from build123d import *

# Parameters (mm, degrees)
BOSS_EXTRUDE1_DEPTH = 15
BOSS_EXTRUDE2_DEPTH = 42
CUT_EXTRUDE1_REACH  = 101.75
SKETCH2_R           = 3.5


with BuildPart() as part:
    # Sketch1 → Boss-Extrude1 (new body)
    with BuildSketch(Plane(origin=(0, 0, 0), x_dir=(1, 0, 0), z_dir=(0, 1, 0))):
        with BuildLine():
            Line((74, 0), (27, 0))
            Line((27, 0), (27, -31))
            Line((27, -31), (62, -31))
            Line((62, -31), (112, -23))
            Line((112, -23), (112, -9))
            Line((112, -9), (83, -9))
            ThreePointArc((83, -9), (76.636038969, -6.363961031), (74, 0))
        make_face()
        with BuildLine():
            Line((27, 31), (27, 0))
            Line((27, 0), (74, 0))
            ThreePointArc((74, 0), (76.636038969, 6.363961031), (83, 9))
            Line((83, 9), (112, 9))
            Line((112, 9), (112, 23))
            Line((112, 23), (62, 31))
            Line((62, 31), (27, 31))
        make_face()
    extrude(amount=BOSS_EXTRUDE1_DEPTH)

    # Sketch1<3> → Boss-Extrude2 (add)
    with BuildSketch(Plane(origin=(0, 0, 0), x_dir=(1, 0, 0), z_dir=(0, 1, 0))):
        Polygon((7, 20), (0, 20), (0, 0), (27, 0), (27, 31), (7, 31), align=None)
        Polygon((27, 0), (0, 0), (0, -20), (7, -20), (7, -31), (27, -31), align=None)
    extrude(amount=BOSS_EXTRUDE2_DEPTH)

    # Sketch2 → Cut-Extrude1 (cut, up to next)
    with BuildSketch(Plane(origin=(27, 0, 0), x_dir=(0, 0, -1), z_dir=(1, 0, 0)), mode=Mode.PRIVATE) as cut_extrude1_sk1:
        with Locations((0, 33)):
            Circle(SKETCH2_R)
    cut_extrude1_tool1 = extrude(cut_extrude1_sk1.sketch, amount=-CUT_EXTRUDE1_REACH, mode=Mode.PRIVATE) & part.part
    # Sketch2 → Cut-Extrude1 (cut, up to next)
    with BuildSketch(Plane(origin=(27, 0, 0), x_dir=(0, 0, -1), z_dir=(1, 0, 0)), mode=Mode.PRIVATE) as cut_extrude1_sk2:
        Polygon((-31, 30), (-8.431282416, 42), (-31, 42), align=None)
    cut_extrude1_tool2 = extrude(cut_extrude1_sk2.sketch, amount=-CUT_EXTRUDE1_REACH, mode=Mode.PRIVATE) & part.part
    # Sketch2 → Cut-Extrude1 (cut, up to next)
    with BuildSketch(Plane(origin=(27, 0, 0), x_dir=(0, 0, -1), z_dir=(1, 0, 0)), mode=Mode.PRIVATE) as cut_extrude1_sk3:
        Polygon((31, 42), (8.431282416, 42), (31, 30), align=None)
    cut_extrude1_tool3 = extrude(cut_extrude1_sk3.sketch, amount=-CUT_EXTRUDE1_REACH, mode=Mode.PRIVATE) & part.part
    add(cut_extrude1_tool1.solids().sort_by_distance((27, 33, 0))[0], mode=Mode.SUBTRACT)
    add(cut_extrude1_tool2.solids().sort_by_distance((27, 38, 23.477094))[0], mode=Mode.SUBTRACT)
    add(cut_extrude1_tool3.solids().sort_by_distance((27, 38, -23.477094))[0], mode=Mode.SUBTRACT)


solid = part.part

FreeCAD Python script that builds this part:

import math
import FreeCAD as App
import Part
import Sketcher
from FreeCAD import Vector
Q = App.Units.Quantity


def add_polygon(sketch, points):
    """Adds a closed chain of lines whose ends are joined by coincident constraints."""
    first, n = sketch.GeometryCount, len(points)
    for a, b in zip(points, points[1:] + points[:1]):
        sketch.addGeometry(Part.LineSegment(App.Vector(*a, 0), App.Vector(*b, 0)), False)
    for i in range(n):
        sketch.addConstraint(Sketcher.Constraint("Coincident", first + i, 2, first + (i + 1) % n, 1))

doc = App.newDocument("Part")
body = doc.addObject("PartDesign::Body", "Body")

# Sketch on XZ plane
sketch1 = body.newObject("Sketcher::SketchObject", "Sketch")
sketch1.AttachmentSupport = (doc.getObject("XZ_Plane"), [""])
sketch1.MapMode = "FlatFace"
sketch1.addGeometry(Part.LineSegment(Vector(27, 31, 0), Vector(62, 31, 0)), False)
sketch1.addGeometry(Part.LineSegment(Vector(62, 31, 0), Vector(112, 23, 0)), False)
sketch1.addGeometry(Part.LineSegment(Vector(112, 23, 0), Vector(112, 9, 0)), False)
sketch1.addGeometry(Part.LineSegment(Vector(112, 9, 0), Vector(83, 9, 0)), False)
sketch1.addGeometry(Part.ArcOfCircle(Part.Circle(Vector(83, 0, 0), Vector(0, 0, 1), 9), math.radians(90), math.radians(180)), False)
sketch1.addGeometry(Part.ArcOfCircle(Part.Circle(Vector(83, 0, 0), Vector(0, 0, 1), 9), math.radians(180), math.radians(270)), False)
sketch1.addGeometry(Part.LineSegment(Vector(83, -9, 0), Vector(112, -9, 0)), False)
sketch1.addGeometry(Part.LineSegment(Vector(112, -9, 0), Vector(112, -23, 0)), False)
sketch1.addGeometry(Part.LineSegment(Vector(112, -23, 0), Vector(62, -31, 0)), False)
sketch1.addGeometry(Part.LineSegment(Vector(62, -31, 0), Vector(27, -31, 0)), False)
sketch1.addGeometry(Part.LineSegment(Vector(27, -31, 0), Vector(27, 31, 0)), False)
sketch1.addConstraint(Sketcher.Constraint("Coincident", 0, 2, 1, 1))
sketch1.addConstraint(Sketcher.Constraint("Coincident", 1, 2, 2, 1))
sketch1.addConstraint(Sketcher.Constraint("Coincident", 2, 2, 3, 1))
sketch1.addConstraint(Sketcher.Constraint("Tangent", 3, 2, 4, 1))
sketch1.addConstraint(Sketcher.Constraint("Tangent", 4, 2, 5, 1))
sketch1.addConstraint(Sketcher.Constraint("Tangent", 5, 2, 6, 1))
sketch1.addConstraint(Sketcher.Constraint("Coincident", 6, 2, 7, 1))
sketch1.addConstraint(Sketcher.Constraint("Coincident", 7, 2, 8, 1))
sketch1.addConstraint(Sketcher.Constraint("Coincident", 8, 2, 9, 1))
sketch1.addConstraint(Sketcher.Constraint("Coincident", 9, 2, 10, 1))
sketch1.addConstraint(Sketcher.Constraint("Coincident", 10, 2, 0, 1))
sketch1.addConstraint(Sketcher.Constraint("Horizontal", 0))
sketch1.addConstraint(Sketcher.Constraint("Vertical", 2))
sketch1.addConstraint(Sketcher.Constraint("Horizontal", 3))
sketch1.addConstraint(Sketcher.Constraint("Horizontal", 6))
sketch1.addConstraint(Sketcher.Constraint("Vertical", 7))
sketch1.addConstraint(Sketcher.Constraint("Horizontal", 9))
sketch1.addConstraint(Sketcher.Constraint("Vertical", 10))
sketch1.addConstraint(Sketcher.Constraint("Equal", 4, 5))
sketch1.addConstraint(Sketcher.Constraint("Symmetric", 2, 2, 6, 2, -1))
sketch1.addConstraint(Sketcher.Constraint("Symmetric", 0, 2, 8, 2, -1))
sketch1.addConstraint(Sketcher.Constraint("PointOnObject", 4, 2, -1))
sketch1.addConstraint(Sketcher.Constraint("Equal", 2, 7))
sketch1.addConstraint(Sketcher.Constraint("Radius", 4, Q("9 mm")))
sketch1.addConstraint(Sketcher.Constraint("DistanceX", 0, 1, 0, 2, Q("35 mm")))
sketch1.addConstraint(Sketcher.Constraint("DistanceX", 3, 2, 3, 1, Q("29 mm")))
sketch1.addConstraint(Sketcher.Constraint("DistanceY", 2, 2, 2, 1, Q("14 mm")))
sketch1.addConstraint(Sketcher.Constraint("DistanceY", 10, 1, 10, 2, Q("62 mm")))
sketch1.addConstraint(Sketcher.Constraint("DistanceX", -1, 1, 4, 3, Q("83 mm")))
sketch1.addConstraint(Sketcher.Constraint("DistanceX", -1, 1, 0, 2, Q("62 mm")))
pad1 = body.newObject("PartDesign::Pad", "Pad")
pad1.Profile = sketch1
pad1.Length = 15
pad1.Reversed = True

# Sketch on XZ plane
sketch2 = body.newObject("Sketcher::SketchObject", "Sketch001")
sketch2.AttachmentSupport = (doc.getObject("XZ_Plane"), [""])
sketch2.MapMode = "FlatFace"
add_polygon(sketch2, [(7, -20), (0, -20), (0, 20), (7, 20), (7, 31), (27, 31), (27, -31), (7, -31)])  # lines 0-7
sketch2.addConstraint(Sketcher.Constraint("Horizontal", 0))
sketch2.addConstraint(Sketcher.Constraint("Vertical", 1))
sketch2.addConstraint(Sketcher.Constraint("Horizontal", 2))
sketch2.addConstraint(Sketcher.Constraint("Vertical", 3))
sketch2.addConstraint(Sketcher.Constraint("Horizontal", 4))
sketch2.addConstraint(Sketcher.Constraint("Vertical", 5))
sketch2.addConstraint(Sketcher.Constraint("Horizontal", 6))
sketch2.addConstraint(Sketcher.Constraint("Vertical", 7))
sketch2.addConstraint(Sketcher.Constraint("Symmetric", 0, 2, 1, 2, -1, 1))
sketch2.addConstraint(Sketcher.Constraint("Symmetric", 3, 2, 6, 2, -1))
sketch2.addConstraint(Sketcher.Constraint("DistanceX", 0, 2, 0, 1, Q("7 mm")))
sketch2.addConstraint(Sketcher.Constraint("DistanceX", 4, 1, 4, 2, Q("20 mm")))
sketch2.addConstraint(Sketcher.Constraint("DistanceY", 1, 1, 1, 2, Q("40 mm")))
sketch2.addConstraint(Sketcher.Constraint("DistanceY", 3, 1, 3, 2, Q("11 mm")))
pad2 = body.newObject("PartDesign::Pad", "Pad001")
pad2.Profile = sketch2
pad2.Length = 42
pad2.Reversed = True

# Sketch on YZ plane
sketch3 = body.newObject("Sketcher::SketchObject", "Sketch002")
sketch3.AttachmentSupport = (doc.getObject("YZ_Plane"), [""])
sketch3.MapMode = "FlatFace"
sketch3.AttachmentOffset = App.Placement(Vector(0, 0, 27), App.Rotation())
sketch3.addGeometry(Part.Circle(Vector(33, 0, 0), Vector(0, 0, 1), 3.5), False)
sketch3.addConstraint(Sketcher.Constraint("PointOnObject", 0, 3, -1))
sketch3.addConstraint(Sketcher.Constraint("Diameter", 0, Q("7 mm")))
sketch3.addConstraint(Sketcher.Constraint("DistanceX", -1, 1, 0, 3, Q("33 mm")))
pocket1 = body.newObject("PartDesign::Pocket", "Pocket")
pocket1.Profile = sketch3
pocket1.Type = "UpToFirst"

# Sketch on YZ plane
sketch4 = body.newObject("Sketcher::SketchObject", "Sketch003")
sketch4.AttachmentSupport = (doc.getObject("YZ_Plane"), [""])
sketch4.MapMode = "FlatFace"
sketch4.AttachmentOffset = App.Placement(Vector(0, 0, 27), App.Rotation())
add_polygon(sketch4, [(30, 31), (42, 8.431282), (42, 31)])  # lines 0-2
sketch4.addConstraint(Sketcher.Constraint("Vertical", 1))
sketch4.addConstraint(Sketcher.Constraint("Horizontal", 2))
sketch4.addConstraint(Sketcher.Constraint("DistanceX", 2, 2, 2, 1, Q("12 mm")))
sketch4.addConstraint(Sketcher.Constraint("Angle", 0, Q("-62 deg")))
sketch4.addConstraint(Sketcher.Constraint("DistanceX", -1, 1, 0, 2, Q("42 mm")))
sketch4.addConstraint(Sketcher.Constraint("DistanceY", -1, 1, 1, 2, Q("31 mm")))
pocket2 = body.newObject("PartDesign::Pocket", "Pocket001")
pocket2.Profile = sketch4
pocket2.Length = 27

# Sketch on YZ plane
sketch5 = body.newObject("Sketcher::SketchObject", "Sketch004")
sketch5.AttachmentSupport = (doc.getObject("YZ_Plane"), [""])
sketch5.MapMode = "FlatFace"
sketch5.AttachmentOffset = App.Placement(Vector(0, 0, 27), App.Rotation())
add_polygon(sketch5, [(42, -31), (42, -8.431282), (30, -31)])  # lines 0-2
sketch5.addConstraint(Sketcher.Constraint("Vertical", 0))
sketch5.addConstraint(Sketcher.Constraint("Horizontal", 2))
sketch5.addConstraint(Sketcher.Constraint("DistanceX", 2, 1, 2, 2, Q("12 mm")))
sketch5.addConstraint(Sketcher.Constraint("Angle", 1, Q("-118 deg")))
sketch5.addConstraint(Sketcher.Constraint("DistanceX", -1, 1, 0, 2, Q("42 mm")))
sketch5.addConstraint(Sketcher.Constraint("DistanceY", 1, 2, -1, 1, Q("31 mm")))
pocket3 = body.newObject("PartDesign::Pocket", "Pocket002")
pocket3.Profile = sketch5
pocket3.Length = 27

doc.recompute()
